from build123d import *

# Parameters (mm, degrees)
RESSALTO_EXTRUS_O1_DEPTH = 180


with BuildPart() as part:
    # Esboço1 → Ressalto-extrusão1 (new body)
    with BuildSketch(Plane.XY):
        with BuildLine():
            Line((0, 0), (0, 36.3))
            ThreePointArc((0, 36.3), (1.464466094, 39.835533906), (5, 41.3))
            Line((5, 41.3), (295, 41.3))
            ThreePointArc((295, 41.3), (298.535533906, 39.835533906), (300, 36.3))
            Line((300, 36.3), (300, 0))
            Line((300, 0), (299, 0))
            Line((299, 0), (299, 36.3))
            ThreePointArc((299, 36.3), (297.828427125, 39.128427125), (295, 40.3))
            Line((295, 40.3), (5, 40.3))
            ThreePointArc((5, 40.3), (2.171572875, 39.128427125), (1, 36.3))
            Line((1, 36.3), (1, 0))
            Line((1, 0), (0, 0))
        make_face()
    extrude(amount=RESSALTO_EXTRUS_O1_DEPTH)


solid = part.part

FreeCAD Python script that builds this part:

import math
import FreeCAD as App
import Part
import Sketcher
from FreeCAD import Vector

doc = App.newDocument("Part")
params = doc.addObject("Spreadsheet::Sheet", "Params")
for row, (alias, value) in enumerate([
    ("sketch1_radius", "4 mm"),
    ("sketch1_radius2", "5 mm"),
    ("sketch1_width", "290 mm"),
    ("sketch1_height", "36.3 mm"),
    ("pad1_length", "180 mm"),
], start=1):
    params.set(f"A{row}", alias)
    params.set(f"B{row}", "=" + value)
    params.setAlias(f"B{row}", alias)

body = doc.addObject("PartDesign::Body", "Body")

# Sketch on XY plane
sketch1 = doc.addObject("Sketcher::SketchObject", "Sketch")
body.addObject(sketch1)
sketch1.AttachmentSupport = (doc.XY_Plane, [""])
sketch1.MapMode = "FlatFace"
sketch1.addGeometry([
    Part.LineSegment(Vector(0, 36.3, 0), Vector(0, 0, 0)),  # 0
    Part.LineSegment(Vector(0, 0, 0), Vector(1, 0, 0)),  # 1
    Part.LineSegment(Vector(1, 0, 0), Vector(1, 36.3, 0)),  # 2
    Part.ArcOfCircle(Part.Circle(Vector(5, 36.3, 0), Vector(0, 0, 1), 4), math.radians(90), math.radians(180)),  # 3
    Part.LineSegment(Vector(5, 40.3, 0), Vector(295, 40.3, 0)),  # 4
    Part.ArcOfCircle(Part.Circle(Vector(295, 36.3, 0), Vector(0, 0, 1), 4), math.radians(0), math.radians(90)),  # 5
    Part.LineSegment(Vector(299, 36.3, 0), Vector(299, 0, 0)),  # 6
    Part.LineSegment(Vector(299, 0, 0), Vector(300, 0, 0)),  # 7
    Part.LineSegment(Vector(300, 0, 0), Vector(300, 36.3, 0)),  # 8
    Part.ArcOfCircle(Part.Circle(Vector(295, 36.3, 0), Vector(0, 0, 1), 5), math.radians(0), math.radians(90)),  # 9
    Part.LineSegment(Vector(295, 41.3, 0), Vector(5, 41.3, 0)),  # 10
    Part.ArcOfCircle(Part.Circle(Vector(5, 36.3, 0), Vector(0, 0, 1), 5), math.radians(90), math.radians(180)),  # 11
], False)
sketch1.addConstraint([
    Sketcher.Constraint("Coincident", 0, 2, 1, 1),
    Sketcher.Constraint("Coincident", 1, 2, 2, 1),
    Sketcher.Constraint("Tangent", 2, 2, 3, 2),
    Sketcher.Constraint("Tangent", 3, 1, 4, 1),
    Sketcher.Constraint("Tangent", 4, 2, 5, 2),
    Sketcher.Constraint("Tangent", 5, 1, 6, 1),
    Sketcher.Constraint("Coincident", 6, 2, 7, 1),
    Sketcher.Constraint("Coincident", 7, 2, 8, 1),
    Sketcher.Constraint("Tangent", 8, 2, 9, 1),
    Sketcher.Constraint("Tangent", 9, 2, 10, 1),
    Sketcher.Constraint("Tangent", 10, 2, 11, 1),
    Sketcher.Constraint("Tangent", 11, 2, 0, 1),
    Sketcher.Constraint("Vertical", 0),
    Sketcher.Constraint("Horizontal", 1),
    Sketcher.Constraint("Vertical", 2),
    Sketcher.Constraint("Horizontal", 4),
    Sketcher.Constraint("Vertical", 6),
    Sketcher.Constraint("Horizontal", 7),
    Sketcher.Constraint("Vertical", 8),
    Sketcher.Constraint("Horizontal", 10),
    Sketcher.Constraint("Coincident", 0, 2, -1, 1),
    Sketcher.Constraint("Coincident", 9, 3, 5, 3),
    Sketcher.Constraint("Coincident", 11, 3, 3, 3),
    Sketcher.Constraint("Equal", 3, 5),
    Sketcher.Constraint("PointOnObject", 6, 2, -1),
    Sketcher.Constraint("Radius", 3, 4.0),
    Sketcher.Constraint("Radius", 9, 5.0),
    Sketcher.Constraint("DistanceX", 4, 1, 4, 2, 290.0),
    Sketcher.Constraint("DistanceY", 0, 2, 0, 1, 36.3),
])
sketch1.setExpression("Constraints[25]", "Params.sketch1_radius")
sketch1.setExpression("Constraints[26]", "Params.sketch1_radius2")
sketch1.setExpression("Constraints[27]", "Params.sketch1_width")
sketch1.setExpression("Constraints[28]", "Params.sketch1_height")
pad1 = doc.addObject("PartDesign::Pad", "Pad")
body.addObject(pad1)
pad1.Profile = sketch1
pad1.setExpression("Length", "Params.pad1_length")

doc.recompute()
